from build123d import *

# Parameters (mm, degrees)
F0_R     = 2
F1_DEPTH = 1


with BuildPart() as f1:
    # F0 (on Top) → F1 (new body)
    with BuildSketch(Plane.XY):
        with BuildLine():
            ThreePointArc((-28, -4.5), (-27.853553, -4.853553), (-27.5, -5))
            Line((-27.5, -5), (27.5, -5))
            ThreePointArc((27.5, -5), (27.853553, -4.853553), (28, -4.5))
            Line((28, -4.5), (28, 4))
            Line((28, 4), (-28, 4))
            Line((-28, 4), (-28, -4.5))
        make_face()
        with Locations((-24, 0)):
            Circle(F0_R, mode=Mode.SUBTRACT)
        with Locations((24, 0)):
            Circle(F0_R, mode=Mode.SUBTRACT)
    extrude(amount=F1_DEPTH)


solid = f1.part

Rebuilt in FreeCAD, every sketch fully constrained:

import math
import FreeCAD as App
import Part
import Sketcher

doc = App.newDocument("Part")
body = doc.addObject("PartDesign::Body", "Body")

# Sketch on XY plane
sketch1 = doc.addObject("Sketcher::SketchObject", "Sketch")
body.addObject(sketch1)
sketch1.AttachmentSupport = (doc.XY_Plane, [""])
sketch1.MapMode = "FlatFace"
sketch1.addGeometry(Part.ArcOfCircle(Part.Circle(App.Vector(-27.499999, -4.499999, 0), App.Vector(0, 0, 1), 0.500001), math.radians(-179.999847), math.radians(-90.000153)), False)
sketch1.addGeometry(Part.LineSegment(App.Vector(-27.5, -5, 0), App.Vector(27.5, -5, 0)), False)
sketch1.addGeometry(Part.ArcOfCircle(Part.Circle(App.Vector(27.499999, -4.499999, 0), App.Vector(0, 0, 1), 0.500001), math.radians(-89.999847), math.radians(-0.000153)), False)
sketch1.addGeometry(Part.LineSegment(App.Vector(28, -4.5, 0), App.Vector(28, 4, 0)), False)
sketch1.addGeometry(Part.LineSegment(App.Vector(28, 4, 0), App.Vector(-28, 4, 0)), False)
sketch1.addGeometry(Part.LineSegment(App.Vector(-28, 4, 0), App.Vector(-28, -4.5, 0)), False)
sketch1.addGeometry(Part.Circle(App.Vector(-24, 0, 0), App.Vector(0, 0, 1), 2), False)
sketch1.addGeometry(Part.Circle(App.Vector(24, 0, 0), App.Vector(0, 0, 1), 2), False)
sketch1.addConstraint(Sketcher.Constraint("Coincident", 0, 2, 1, 1))
sketch1.addConstraint(Sketcher.Constraint("Coincident", 1, 2, 2, 1))
sketch1.addConstraint(Sketcher.Constraint("Coincident", 2, 2, 3, 1))
sketch1.addConstraint(Sketcher.Constraint("Coincident", 3, 2, 4, 1))
sketch1.addConstraint(Sketcher.Constraint("Coincident", 4, 2, 5, 1))
sketch1.addConstraint(Sketcher.Constraint("Coincident", 5, 2, 0, 1))
sketch1.addConstraint(Sketcher.Constraint("Horizontal", 1))
sketch1.addConstraint(Sketcher.Constraint("Vertical", 3))
sketch1.addConstraint(Sketcher.Constraint("Horizontal", 4))
sketch1.addConstraint(Sketcher.Constraint("Vertical", 5))
sketch1.addConstraint(Sketcher.Constraint("Equal", 0, 2))
sketch1.addConstraint(Sketcher.Constraint("Equal", 6, 7))
sketch1.addConstraint(Sketcher.Constraint("Symmetric", 6, 3, 7, 3, -1, 1))
sketch1.addConstraint(Sketcher.Constraint("Symmetric", 2, 2, 5, 2, -2))
sketch1.addConstraint(Sketcher.Constraint("PointOnObject", 6, 3, -1))
sketch1.addConstraint(Sketcher.Constraint("Horizontal", 0, 3, 2, 2))
sketch1.addConstraint(Sketcher.Constraint("Vertical", 2, 3, 1, 2))
sketch1.addConstraint(Sketcher.Constraint("Diameter", 6, 4.0))
sketch1.addConstraint(Sketcher.Constraint("Radius", 0, 0.500001))
sketch1.addConstraint(Sketcher.Constraint("DistanceX", 1, 1, 1, 2, 55.0))
sketch1.addConstraint(Sketcher.Constraint("DistanceX", 4, 2, 4, 1, 56.0))
sketch1.addConstraint(Sketcher.Constraint("DistanceY", 3, 1, 3, 2, 8.5))
sketch1.addConstraint(Sketcher.Constraint("DistanceX", 6, 3, -1, 1, 24.0))
sketch1.addConstraint(Sketcher.Constraint("DistanceY", 0, 2, -1, 1, 5.0))
pad1 = doc.addObject("PartDesign::Pad", "Pad")
body.addObject(pad1)
pad1.Profile = sketch1
pad1.Length = 1

doc.recompute()
